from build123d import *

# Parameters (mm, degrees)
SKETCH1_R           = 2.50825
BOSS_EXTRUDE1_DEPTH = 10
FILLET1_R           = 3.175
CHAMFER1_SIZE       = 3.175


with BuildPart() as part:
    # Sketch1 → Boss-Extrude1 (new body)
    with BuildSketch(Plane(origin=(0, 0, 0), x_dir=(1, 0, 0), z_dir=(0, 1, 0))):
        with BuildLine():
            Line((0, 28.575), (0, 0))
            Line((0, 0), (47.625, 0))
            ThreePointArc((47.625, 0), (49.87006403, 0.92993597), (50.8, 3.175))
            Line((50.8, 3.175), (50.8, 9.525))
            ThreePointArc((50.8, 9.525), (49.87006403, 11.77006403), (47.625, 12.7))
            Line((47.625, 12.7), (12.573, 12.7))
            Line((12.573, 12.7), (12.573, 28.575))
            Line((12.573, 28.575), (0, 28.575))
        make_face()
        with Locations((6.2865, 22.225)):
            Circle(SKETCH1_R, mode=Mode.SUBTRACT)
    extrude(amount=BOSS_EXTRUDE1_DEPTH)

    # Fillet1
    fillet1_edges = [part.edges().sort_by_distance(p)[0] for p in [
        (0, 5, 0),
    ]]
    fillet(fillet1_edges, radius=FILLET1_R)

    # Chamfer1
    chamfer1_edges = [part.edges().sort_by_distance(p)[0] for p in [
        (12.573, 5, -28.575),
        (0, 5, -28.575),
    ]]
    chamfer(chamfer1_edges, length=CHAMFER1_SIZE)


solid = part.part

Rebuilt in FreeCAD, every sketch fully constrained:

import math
import FreeCAD as App
import Part
import Sketcher
from FreeCAD import Vector
Q = App.Units.Quantity


def edges_at(feature, points):
    """Names of the edges that pass closest to the given points."""
    edges = feature.Shape.Edges
    near = lambda p: min(range(len(edges)), key=lambda i: edges[i].distToShape(Part.Vertex(*p))[0])
    return sorted({f"Edge{near(p) + 1}" for p in points})

doc = App.newDocument("Part")
params = doc.addObject("Spreadsheet::Sheet", "Params")
for row, (alias, value) in enumerate([
    ("sketch1_radius", "0.125 in"),
    ("sketch1_width", "1.38 in"),
    ("sketch1_height", "0.25 in"),
    ("sketch1_height2", "1.125 in"),
    ("pad1_length", "10 mm"),
    ("fillet_radius", "0.125 in"),
    ("chamfer_size", "0.125 in"),
], start=1):
    params.set(f"A{row}", alias)
    params.set(f"B{row}", "=" + value)
    params.setAlias(f"B{row}", alias)

body = doc.addObject("PartDesign::Body", "Body")

sketch1 = doc.addObject("Sketcher::SketchObject", "Sketch")
body.addObject(sketch1)
sketch1.AttachmentSupport = (doc.XZ_Plane, [""])
sketch1.MapMode = "FlatFace"
sketch1.addGeometry([
    Part.LineSegment(Vector(0, -28.575, 0), Vector(0, 0, 0)),
    Part.LineSegment(Vector(0, 0, 0), Vector(47.625, 0, 0)),
    Part.ArcOfCircle(Part.Circle(Vector(47.625, -3.175, 0), Vector(0, 0, 1), 3.175), math.radians(0), math.radians(90)),
    Part.LineSegment(Vector(50.8, -3.175, 0), Vector(50.8, -9.525, 0)),
    Part.ArcOfCircle(Part.Circle(Vector(47.625, -9.525, 0), Vector(0, 0, 1), 3.175), math.radians(-90), math.radians(0)),
    Part.LineSegment(Vector(47.625, -12.7, 0), Vector(12.573, -12.7, 0)),
    Part.LineSegment(Vector(12.573, -12.7, 0), Vector(12.573, -28.575, 0)),
    Part.LineSegment(Vector(12.573, -28.575, 0), Vector(0, -28.575, 0)),
    Part.Circle(Vector(6.2865, -22.225, 0), Vector(0, 0, 1), 2.50825),
], False)
sketch1.addConstraint([
    Sketcher.Constraint("Coincident", 0, 2, 1, 1),
    Sketcher.Constraint("Tangent", 1, 2, 2, 2),
    Sketcher.Constraint("Tangent", 2, 1, 3, 1),
    Sketcher.Constraint("Tangent", 3, 2, 4, 2),
    Sketcher.Constraint("Tangent", 4, 1, 5, 1),
    Sketcher.Constraint("Coincident", 5, 2, 6, 1),
    Sketcher.Constraint("Coincident", 6, 2, 7, 1),
    Sketcher.Constraint("Coincident", 7, 2, 0, 1),
    Sketcher.Constraint("Vertical", 0),
    Sketcher.Constraint("Horizontal", 1),
    Sketcher.Constraint("Vertical", 3),
    Sketcher.Constraint("Horizontal", 5),
    Sketcher.Constraint("Vertical", 6),
    Sketcher.Constraint("Horizontal", 7),
    Sketcher.Constraint("Coincident", 0, 2, -1, 1),
    Sketcher.Constraint("Equal", 2, 4),
    Sketcher.Constraint("DistanceX", -1, 1, 2, 1, Q("2 in")),
    Sketcher.Constraint("Radius", 2, Q("0.125 in")),
    Sketcher.Constraint("Diameter", 8, Q("0.1975 in")),
    Sketcher.Constraint("DistanceX", 5, 2, 5, 1, Q("1.38 in")),
    Sketcher.Constraint("DistanceY", 3, 2, 3, 1, Q("0.25 in")),
    Sketcher.Constraint("DistanceY", 8, 3, 4, 3, Q("0.5 in")),
    Sketcher.Constraint("DistanceY", 0, 1, 0, 2, Q("1.125 in")),
    Sketcher.Constraint("DistanceX", -1, 1, 8, 3, Q("0.2475 in")),
])
sketch1.setExpression("Constraints[17]", "Params.sketch1_radius")
sketch1.setExpression("Constraints[19]", "Params.sketch1_width")
sketch1.setExpression("Constraints[20]", "Params.sketch1_height")
sketch1.setExpression("Constraints[22]", "Params.sketch1_height2")
pad1 = doc.addObject("PartDesign::Pad", "Pad")
body.addObject(pad1)
pad1.Profile = sketch1
pad1.setExpression("Length", "Params.pad1_length")
pad1.Reversed = True
doc.recompute()

fillet = doc.addObject("PartDesign::Fillet", "Fillet")
body.addObject(fillet)
fillet.Base = (pad1, edges_at(pad1, [(0, 5, 0)]))
fillet.setExpression("Radius", "Params.fillet_radius")
doc.recompute()

chamfer = doc.addObject("PartDesign::Chamfer", "Chamfer")
body.addObject(chamfer)
chamfer.Base = (fillet, edges_at(fillet, [(12.573, 5, -28.575), (0, 5, -28.575)]))
chamfer.setExpression("Size", "Params.chamfer_size")

doc.recompute()
